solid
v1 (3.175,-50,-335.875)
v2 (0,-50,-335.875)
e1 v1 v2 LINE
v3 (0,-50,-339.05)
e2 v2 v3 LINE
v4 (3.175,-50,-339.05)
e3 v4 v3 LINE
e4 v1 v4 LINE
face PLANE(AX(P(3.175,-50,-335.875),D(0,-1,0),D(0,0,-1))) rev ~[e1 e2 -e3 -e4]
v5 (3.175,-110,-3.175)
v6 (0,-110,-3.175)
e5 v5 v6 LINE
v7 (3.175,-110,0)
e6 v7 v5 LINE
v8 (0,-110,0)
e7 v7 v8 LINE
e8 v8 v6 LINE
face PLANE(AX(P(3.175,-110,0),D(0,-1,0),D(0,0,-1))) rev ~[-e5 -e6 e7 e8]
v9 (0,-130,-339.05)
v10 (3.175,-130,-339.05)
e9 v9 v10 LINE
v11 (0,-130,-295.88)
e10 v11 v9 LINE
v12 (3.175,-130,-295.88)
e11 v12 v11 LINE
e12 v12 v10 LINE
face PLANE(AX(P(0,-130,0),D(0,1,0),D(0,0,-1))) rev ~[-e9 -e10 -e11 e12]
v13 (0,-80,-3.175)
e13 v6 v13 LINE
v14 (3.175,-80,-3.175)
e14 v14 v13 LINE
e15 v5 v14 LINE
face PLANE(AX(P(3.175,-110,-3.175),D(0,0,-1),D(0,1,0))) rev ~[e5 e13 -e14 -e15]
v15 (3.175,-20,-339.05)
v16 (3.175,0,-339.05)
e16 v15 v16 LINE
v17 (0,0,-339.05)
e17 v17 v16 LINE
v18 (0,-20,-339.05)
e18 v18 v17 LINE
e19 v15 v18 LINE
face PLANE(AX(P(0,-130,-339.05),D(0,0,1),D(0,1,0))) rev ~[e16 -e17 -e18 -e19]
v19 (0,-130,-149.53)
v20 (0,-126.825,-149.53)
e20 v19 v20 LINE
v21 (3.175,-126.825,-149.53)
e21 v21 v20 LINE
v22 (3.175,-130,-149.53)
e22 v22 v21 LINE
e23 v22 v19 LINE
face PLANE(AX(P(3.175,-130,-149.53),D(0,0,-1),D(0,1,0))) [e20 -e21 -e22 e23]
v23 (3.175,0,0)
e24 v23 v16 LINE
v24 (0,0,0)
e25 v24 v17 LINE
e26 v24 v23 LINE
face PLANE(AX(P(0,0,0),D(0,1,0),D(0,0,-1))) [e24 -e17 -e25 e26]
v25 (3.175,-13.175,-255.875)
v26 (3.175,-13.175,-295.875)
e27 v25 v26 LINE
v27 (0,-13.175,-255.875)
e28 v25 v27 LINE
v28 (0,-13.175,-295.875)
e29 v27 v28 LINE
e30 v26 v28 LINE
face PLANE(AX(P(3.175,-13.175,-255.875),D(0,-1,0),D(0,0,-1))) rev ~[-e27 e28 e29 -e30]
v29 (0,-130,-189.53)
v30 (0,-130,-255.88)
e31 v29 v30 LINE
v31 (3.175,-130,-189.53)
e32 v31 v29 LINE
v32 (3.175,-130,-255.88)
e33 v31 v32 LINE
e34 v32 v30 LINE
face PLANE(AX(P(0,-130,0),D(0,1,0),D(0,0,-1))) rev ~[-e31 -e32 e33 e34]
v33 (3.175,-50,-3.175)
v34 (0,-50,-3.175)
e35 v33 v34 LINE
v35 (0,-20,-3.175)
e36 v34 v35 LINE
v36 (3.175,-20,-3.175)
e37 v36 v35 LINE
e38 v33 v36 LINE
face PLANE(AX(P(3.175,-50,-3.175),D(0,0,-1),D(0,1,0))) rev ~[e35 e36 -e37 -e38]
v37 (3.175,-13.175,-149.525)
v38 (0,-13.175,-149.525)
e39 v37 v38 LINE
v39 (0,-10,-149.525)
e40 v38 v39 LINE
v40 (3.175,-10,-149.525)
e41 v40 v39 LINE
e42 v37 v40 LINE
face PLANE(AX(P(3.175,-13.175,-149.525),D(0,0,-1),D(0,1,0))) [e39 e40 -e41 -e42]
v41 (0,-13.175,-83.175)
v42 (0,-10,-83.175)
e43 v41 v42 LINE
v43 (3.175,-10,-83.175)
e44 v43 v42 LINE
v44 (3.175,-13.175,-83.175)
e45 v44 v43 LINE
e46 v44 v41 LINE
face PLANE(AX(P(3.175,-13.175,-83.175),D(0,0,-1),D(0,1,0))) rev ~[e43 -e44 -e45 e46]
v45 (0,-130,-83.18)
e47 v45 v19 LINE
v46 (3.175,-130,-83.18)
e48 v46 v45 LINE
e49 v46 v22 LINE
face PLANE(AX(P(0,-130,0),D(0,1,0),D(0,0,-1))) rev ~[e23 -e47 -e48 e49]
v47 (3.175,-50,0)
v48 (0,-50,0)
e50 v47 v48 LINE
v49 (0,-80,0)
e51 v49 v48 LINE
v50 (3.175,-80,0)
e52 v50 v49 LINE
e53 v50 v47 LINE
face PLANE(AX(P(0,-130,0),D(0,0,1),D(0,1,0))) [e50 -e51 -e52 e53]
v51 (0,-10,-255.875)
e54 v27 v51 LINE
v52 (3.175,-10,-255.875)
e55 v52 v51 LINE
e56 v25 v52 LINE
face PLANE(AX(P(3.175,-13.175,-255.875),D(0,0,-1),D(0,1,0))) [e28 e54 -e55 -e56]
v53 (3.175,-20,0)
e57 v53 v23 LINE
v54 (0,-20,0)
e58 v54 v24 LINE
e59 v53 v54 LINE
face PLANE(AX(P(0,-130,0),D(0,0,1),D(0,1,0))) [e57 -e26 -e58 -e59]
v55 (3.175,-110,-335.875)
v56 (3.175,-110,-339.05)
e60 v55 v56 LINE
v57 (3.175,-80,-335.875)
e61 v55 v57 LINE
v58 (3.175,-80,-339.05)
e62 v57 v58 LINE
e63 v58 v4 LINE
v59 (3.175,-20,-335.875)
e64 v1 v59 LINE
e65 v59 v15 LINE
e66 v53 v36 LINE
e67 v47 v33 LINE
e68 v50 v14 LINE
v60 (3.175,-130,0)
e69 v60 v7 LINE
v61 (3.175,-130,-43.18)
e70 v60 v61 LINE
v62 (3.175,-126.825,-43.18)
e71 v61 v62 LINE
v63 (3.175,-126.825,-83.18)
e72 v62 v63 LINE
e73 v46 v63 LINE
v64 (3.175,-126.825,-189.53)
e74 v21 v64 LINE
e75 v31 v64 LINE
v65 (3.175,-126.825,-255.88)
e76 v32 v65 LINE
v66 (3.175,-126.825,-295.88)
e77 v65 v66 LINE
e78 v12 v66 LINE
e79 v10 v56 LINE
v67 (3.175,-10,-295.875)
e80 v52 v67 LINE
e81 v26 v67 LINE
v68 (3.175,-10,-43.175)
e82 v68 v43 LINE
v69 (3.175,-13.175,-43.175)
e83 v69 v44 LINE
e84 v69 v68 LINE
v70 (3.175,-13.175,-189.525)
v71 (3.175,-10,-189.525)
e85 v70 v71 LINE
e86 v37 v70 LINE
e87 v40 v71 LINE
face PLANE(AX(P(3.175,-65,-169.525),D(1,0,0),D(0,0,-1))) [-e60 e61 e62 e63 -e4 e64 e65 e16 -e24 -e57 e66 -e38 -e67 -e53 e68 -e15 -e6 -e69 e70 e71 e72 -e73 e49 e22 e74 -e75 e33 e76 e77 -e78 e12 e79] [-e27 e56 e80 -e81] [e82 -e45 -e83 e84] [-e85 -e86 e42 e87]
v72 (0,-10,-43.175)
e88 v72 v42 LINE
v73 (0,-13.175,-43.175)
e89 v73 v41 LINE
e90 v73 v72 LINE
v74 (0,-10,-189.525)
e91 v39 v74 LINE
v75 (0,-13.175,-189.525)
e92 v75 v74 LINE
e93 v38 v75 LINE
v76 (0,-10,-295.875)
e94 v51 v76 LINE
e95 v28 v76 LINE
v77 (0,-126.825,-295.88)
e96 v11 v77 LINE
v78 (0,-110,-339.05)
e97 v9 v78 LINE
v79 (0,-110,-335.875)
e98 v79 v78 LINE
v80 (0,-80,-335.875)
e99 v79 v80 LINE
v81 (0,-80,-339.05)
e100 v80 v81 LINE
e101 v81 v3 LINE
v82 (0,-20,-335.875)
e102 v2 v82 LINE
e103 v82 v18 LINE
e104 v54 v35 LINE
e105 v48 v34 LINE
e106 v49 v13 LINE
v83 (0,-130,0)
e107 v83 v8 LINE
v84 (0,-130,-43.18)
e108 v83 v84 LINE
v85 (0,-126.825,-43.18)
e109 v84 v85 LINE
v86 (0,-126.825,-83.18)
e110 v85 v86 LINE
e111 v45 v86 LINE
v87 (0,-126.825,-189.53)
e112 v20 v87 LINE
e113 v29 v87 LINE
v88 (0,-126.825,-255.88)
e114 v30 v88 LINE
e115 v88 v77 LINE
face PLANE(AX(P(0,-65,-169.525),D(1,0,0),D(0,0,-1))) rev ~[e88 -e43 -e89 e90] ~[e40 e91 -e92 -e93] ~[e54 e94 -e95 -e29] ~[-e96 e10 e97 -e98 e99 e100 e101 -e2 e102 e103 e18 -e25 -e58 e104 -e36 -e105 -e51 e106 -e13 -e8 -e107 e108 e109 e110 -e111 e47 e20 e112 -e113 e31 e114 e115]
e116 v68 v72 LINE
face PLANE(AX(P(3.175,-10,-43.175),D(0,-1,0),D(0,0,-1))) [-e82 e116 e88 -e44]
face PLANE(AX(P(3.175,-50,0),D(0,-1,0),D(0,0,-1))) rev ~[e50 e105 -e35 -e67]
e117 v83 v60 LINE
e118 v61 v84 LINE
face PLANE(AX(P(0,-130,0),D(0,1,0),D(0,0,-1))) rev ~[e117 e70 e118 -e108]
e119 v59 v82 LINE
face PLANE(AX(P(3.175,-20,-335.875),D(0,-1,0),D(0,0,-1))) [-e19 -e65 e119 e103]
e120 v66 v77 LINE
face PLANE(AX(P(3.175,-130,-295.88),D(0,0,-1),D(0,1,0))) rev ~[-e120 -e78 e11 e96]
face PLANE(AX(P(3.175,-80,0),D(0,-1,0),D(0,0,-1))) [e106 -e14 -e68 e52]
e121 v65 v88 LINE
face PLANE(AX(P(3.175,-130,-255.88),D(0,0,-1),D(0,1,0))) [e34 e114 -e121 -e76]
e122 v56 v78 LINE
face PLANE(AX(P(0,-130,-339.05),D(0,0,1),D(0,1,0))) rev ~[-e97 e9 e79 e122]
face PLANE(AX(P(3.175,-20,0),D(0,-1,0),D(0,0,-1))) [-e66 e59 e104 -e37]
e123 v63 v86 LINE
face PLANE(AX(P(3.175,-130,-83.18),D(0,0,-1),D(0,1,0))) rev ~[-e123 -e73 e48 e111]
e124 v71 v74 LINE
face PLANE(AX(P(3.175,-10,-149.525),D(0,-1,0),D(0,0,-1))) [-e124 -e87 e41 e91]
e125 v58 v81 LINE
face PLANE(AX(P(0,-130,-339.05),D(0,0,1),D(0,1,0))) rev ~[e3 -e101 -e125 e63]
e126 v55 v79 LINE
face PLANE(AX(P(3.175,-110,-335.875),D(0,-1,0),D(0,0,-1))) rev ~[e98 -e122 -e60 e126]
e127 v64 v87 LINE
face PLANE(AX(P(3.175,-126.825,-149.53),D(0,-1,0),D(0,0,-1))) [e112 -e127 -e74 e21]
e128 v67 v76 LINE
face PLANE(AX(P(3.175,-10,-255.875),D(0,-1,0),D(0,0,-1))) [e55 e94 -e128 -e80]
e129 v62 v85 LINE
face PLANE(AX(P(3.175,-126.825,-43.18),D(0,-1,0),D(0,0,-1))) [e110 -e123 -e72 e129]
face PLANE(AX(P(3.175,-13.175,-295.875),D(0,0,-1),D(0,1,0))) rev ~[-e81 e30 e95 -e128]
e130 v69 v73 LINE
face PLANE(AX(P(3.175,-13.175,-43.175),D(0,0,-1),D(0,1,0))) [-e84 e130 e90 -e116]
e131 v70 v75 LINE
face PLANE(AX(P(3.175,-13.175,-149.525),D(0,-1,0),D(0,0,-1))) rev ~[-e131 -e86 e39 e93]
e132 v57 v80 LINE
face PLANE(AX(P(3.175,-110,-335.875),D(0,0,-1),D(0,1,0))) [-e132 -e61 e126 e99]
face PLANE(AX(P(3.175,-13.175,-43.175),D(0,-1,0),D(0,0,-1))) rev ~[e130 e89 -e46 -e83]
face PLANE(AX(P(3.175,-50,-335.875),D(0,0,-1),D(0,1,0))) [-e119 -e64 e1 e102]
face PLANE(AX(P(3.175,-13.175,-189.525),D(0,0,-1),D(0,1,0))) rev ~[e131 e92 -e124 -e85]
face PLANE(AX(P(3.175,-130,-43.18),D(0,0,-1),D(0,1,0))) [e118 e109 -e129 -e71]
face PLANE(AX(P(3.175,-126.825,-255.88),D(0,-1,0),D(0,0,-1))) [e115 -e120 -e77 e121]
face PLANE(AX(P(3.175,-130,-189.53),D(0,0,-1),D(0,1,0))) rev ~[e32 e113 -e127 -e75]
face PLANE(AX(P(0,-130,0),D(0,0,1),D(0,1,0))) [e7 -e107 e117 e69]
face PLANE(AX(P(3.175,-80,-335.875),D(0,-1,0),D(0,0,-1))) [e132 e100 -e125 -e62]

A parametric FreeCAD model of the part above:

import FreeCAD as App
import Part
import Sketcher
from FreeCAD import Vector
Q = App.Units.Quantity

doc = App.newDocument("Part")
body = doc.addObject("PartDesign::Body", "Body")

sketch1 = body.newObject("Sketcher::SketchObject", "Sketch")
sketch1.AttachmentSupport = (doc.getObject("YZ_Plane"), [""])
sketch1.MapMode = "FlatFace"
sketch1.addGeometry(Part.LineSegment(Vector(0, 0, 0), Vector(-130, 0, 0)), False)
sketch1.addGeometry(Part.LineSegment(Vector(-130, 0, 0), Vector(-130, -339, 0)), False)
sketch1.addGeometry(Part.LineSegment(Vector(-130, -339, 0), Vector(0, -339, 0)), False)
sketch1.addGeometry(Part.LineSegment(Vector(0, -339, 0), Vector(0, 0, 0)), False)
sketch1.addConstraint(Sketcher.Constraint("Coincident", 0, 2, 1, 1))
sketch1.addConstraint(Sketcher.Constraint("Coincident", 1, 2, 2, 1))
sketch1.addConstraint(Sketcher.Constraint("Coincident", 2, 2, 3, 1))
sketch1.addConstraint(Sketcher.Constraint("Coincident", 3, 2, 0, 1))
sketch1.addConstraint(Sketcher.Constraint("Horizontal", 0))
sketch1.addConstraint(Sketcher.Constraint("Vertical", 1))
sketch1.addConstraint(Sketcher.Constraint("Horizontal", 2))
sketch1.addConstraint(Sketcher.Constraint("Vertical", 3))
sketch1.addConstraint(Sketcher.Constraint("Coincident", 3, 2, -1, 1))
sketch1.addConstraint(Sketcher.Constraint("DistanceX", 0, 2, 0, 1, Q("130 mm")))
sketch1.addConstraint(Sketcher.Constraint("DistanceY", 1, 2, 1, 1, Q("339.05 mm")))
pad1 = body.newObject("PartDesign::Pad", "Pad")
pad1.Profile = sketch1
pad1.Length = 3.175

sketch2 = body.newObject("Sketcher::SketchObject", "Sketch001")
sketch2.AttachmentSupport = (doc.getObject("YZ_Plane"), [""])
sketch2.MapMode = "FlatFace"
sketch2.AttachmentOffset = App.Placement(Vector(0, 0, 3.175), App.Rotation())
sketch2.addGeometry(Part.LineSegment(Vector(-10, -43.2, 0), Vector(-13.2, -43.2, 0)), False)
sketch2.addGeometry(Part.LineSegment(Vector(-13.2, -43.2, 0), Vector(-13.2, -83.2, 0)), False)
sketch2.addGeometry(Part.LineSegment(Vector(-13.2, -83.2, 0), Vector(-10, -83.2, 0)), False)
sketch2.addGeometry(Part.LineSegment(Vector(-10, -83.2, 0), Vector(-10, -43.2, 0)), False)
sketch2.addGeometry(Part.LineSegment(Vector(-10, -149.5, 0), Vector(-13.2, -149.5, 0)), False)
sketch2.addGeometry(Part.LineSegment(Vector(-13.2, -149.5, 0), Vector(-13.2, -189.5, 0)), False)
sketch2.addGeometry(Part.LineSegment(Vector(-13.2, -189.5, 0), Vector(-10, -189.5, 0)), False)
sketch2.addGeometry(Part.LineSegment(Vector(-10, -189.5, 0), Vector(-10, -149.5, 0)), False)
sketch2.addGeometry(Part.LineSegment(Vector(-10, -255.9, 0), Vector(-13.2, -255.9, 0)), False)
sketch2.addGeometry(Part.LineSegment(Vector(-13.2, -255.9, 0), Vector(-13.2, -295.9, 0)), False)
sketch2.addGeometry(Part.LineSegment(Vector(-13.2, -295.9, 0), Vector(-10, -295.9, 0)), False)
sketch2.addGeometry(Part.LineSegment(Vector(-10, -295.9, 0), Vector(-10, -255.9, 0)), False)
sketch2.addGeometry(Part.LineSegment(Vector(-20, -335.9, 0), Vector(-50, -335.9, 0)), False)
sketch2.addGeometry(Part.LineSegment(Vector(-50, -335.9, 0), Vector(-50, -339.1, 0)), False)
sketch2.addGeometry(Part.LineSegment(Vector(-50, -339.1, 0), Vector(-20, -339.1, 0)), False)
sketch2.addGeometry(Part.LineSegment(Vector(-20, -339.1, 0), Vector(-20, -335.9, 0)), False)
sketch2.addGeometry(Part.LineSegment(Vector(-80, -335.9, 0), Vector(-110, -335.9, 0)), False)
sketch2.addGeometry(Part.LineSegment(Vector(-110, -335.9, 0), Vector(-110, -339.1, 0)), False)
sketch2.addGeometry(Part.LineSegment(Vector(-110, -339.1, 0), Vector(-80, -339.1, 0)), False)
sketch2.addGeometry(Part.LineSegment(Vector(-80, -339.1, 0), Vector(-80, -335.9, 0)), False)
sketch2.addGeometry(Part.LineSegment(Vector(-20, 0, 0), Vector(-50, 0, 0)), False)
sketch2.addGeometry(Part.LineSegment(Vector(-50, 0, 0), Vector(-50, -3.2, 0)), False)
sketch2.addGeometry(Part.LineSegment(Vector(-50, -3.2, 0), Vector(-20, -3.2, 0)), False)
sketch2.addGeometry(Part.LineSegment(Vector(-20, -3.2, 0), Vector(-20, 0, 0)), False)
sketch2.addGeometry(Part.LineSegment(Vector(-80, 0, 0), Vector(-110, 0, 0)), False)
sketch2.addGeometry(Part.LineSegment(Vector(-110, 0, 0), Vector(-110, -3.2, 0)), False)
sketch2.addGeometry(Part.LineSegment(Vector(-110, -3.2, 0), Vector(-80, -3.2, 0)), False)
sketch2.addGeometry(Part.LineSegment(Vector(-80, -3.2, 0), Vector(-80, 0, 0)), False)
sketch2.addConstraint(Sketcher.Constraint("Coincident", 0, 2, 1, 1))
sketch2.addConstraint(Sketcher.Constraint("Coincident", 1, 2, 2, 1))
sketch2.addConstraint(Sketcher.Constraint("Coincident", 2, 2, 3, 1))
sketch2.addConstraint(Sketcher.Constraint("Coincident", 3, 2, 0, 1))
sketch2.addConstraint(Sketcher.Constraint("Coincident", 4, 2, 5, 1))
sketch2.addConstraint(Sketcher.Constraint("Coincident", 5, 2, 6, 1))
sketch2.addConstraint(Sketcher.Constraint("Coincident", 6, 2, 7, 1))
sketch2.addConstraint(Sketcher.Constraint("Coincident", 7, 2, 4, 1))
sketch2.addConstraint(Sketcher.Constraint("Coincident", 8, 2, 9, 1))
sketch2.addConstraint(Sketcher.Constraint("Coincident", 9, 2, 10, 1))
sketch2.addConstraint(Sketcher.Constraint("Coincident", 10, 2, 11, 1))
sketch2.addConstraint(Sketcher.Constraint("Coincident", 11, 2, 8, 1))
sketch2.addConstraint(Sketcher.Constraint("Coincident", 12, 2, 13, 1))
sketch2.addConstraint(Sketcher.Constraint("Coincident", 13, 2, 14, 1))
sketch2.addConstraint(Sketcher.Constraint("Coincident", 14, 2, 15, 1))
sketch2.addConstraint(Sketcher.Constraint("Coincident", 15, 2, 12, 1))
sketch2.addConstraint(Sketcher.Constraint("Coincident", 16, 2, 17, 1))
sketch2.addConstraint(Sketcher.Constraint("Coincident", 17, 2, 18, 1))
sketch2.addConstraint(Sketcher.Constraint("Coincident", 18, 2, 19, 1))
sketch2.addConstraint(Sketcher.Constraint("Coincident", 19, 2, 16, 1))
sketch2.addConstraint(Sketcher.Constraint("Coincident", 20, 2, 21, 1))
sketch2.addConstraint(Sketcher.Constraint("Coincident", 21, 2, 22, 1))
sketch2.addConstraint(Sketcher.Constraint("Coincident", 22, 2, 23, 1))
sketch2.addConstraint(Sketcher.Constraint("Coincident", 23, 2, 20, 1))
sketch2.addConstraint(Sketcher.Constraint("Coincident", 24, 2, 25, 1))
sketch2.addConstraint(Sketcher.Constraint("Coincident", 25, 2, 26, 1))
sketch2.addConstraint(Sketcher.Constraint("Coincident", 26, 2, 27, 1))
sketch2.addConstraint(Sketcher.Constraint("Coincident", 27, 2, 24, 1))
sketch2.addConstraint(Sketcher.Constraint("Horizontal", 0))
sketch2.addConstraint(Sketcher.Constraint("Vertical", 1))
sketch2.addConstraint(Sketcher.Constraint("Horizontal", 2))
sketch2.addConstraint(Sketcher.Constraint("Vertical", 3))
sketch2.addConstraint(Sketcher.Constraint("Horizontal", 4))
sketch2.addConstraint(Sketcher.Constraint("Vertical", 5))
sketch2.addConstraint(Sketcher.Constraint("Horizontal", 6))
sketch2.addConstraint(Sketcher.Constraint("Vertical", 7))
sketch2.addConstraint(Sketcher.Constraint("Horizontal", 8))
sketch2.addConstraint(Sketcher.Constraint("Vertical", 9))
sketch2.addConstraint(Sketcher.Constraint("Horizontal", 10))
sketch2.addConstraint(Sketcher.Constraint("Vertical", 11))
sketch2.addConstraint(Sketcher.Constraint("Horizontal", 12))
sketch2.addConstraint(Sketcher.Constraint("Vertical", 13))
sketch2.addConstraint(Sketcher.Constraint("Horizontal", 14))
sketch2.addConstraint(Sketcher.Constraint("Vertical", 15))
sketch2.addConstraint(Sketcher.Constraint("Horizontal", 16))
sketch2.addConstraint(Sketcher.Constraint("Vertical", 17))
sketch2.addConstraint(Sketcher.Constraint("Horizontal", 18))
sketch2.addConstraint(Sketcher.Constraint("Vertical", 19))
sketch2.addConstraint(Sketcher.Constraint("Horizontal", 20))
sketch2.addConstraint(Sketcher.Constraint("Vertical", 21))
sketch2.addConstraint(Sketcher.Constraint("Horizontal", 22))
sketch2.addConstraint(Sketcher.Constraint("Vertical", 23))
sketch2.addConstraint(Sketcher.Constraint("Horizontal", 24))
sketch2.addConstraint(Sketcher.Constraint("Vertical", 25))
sketch2.addConstraint(Sketcher.Constraint("Horizontal", 26))
sketch2.addConstraint(Sketcher.Constraint("Vertical", 27))
sketch2.addConstraint(Sketcher.Constraint("PointOnObject", 20, 2, -1))
sketch2.addConstraint(Sketcher.Constraint("PointOnObject", 24, 2, -1))
sketch2.addConstraint(Sketcher.Constraint("Horizontal", 15, 2, 16, 2))
sketch2.addConstraint(Sketcher.Constraint("Horizontal", 14, 2, 17, 2))
sketch2.addConstraint(Sketcher.Constraint("Horizontal", 22, 2, 25, 2))
sketch2.addConstraint(Sketcher.Constraint("Vertical", 1, 2, 4, 2))
sketch2.addConstraint(Sketcher.Constraint("Vertical", 3, 2, 6, 2))
sketch2.addConstraint(Sketcher.Constraint("Vertical", 5, 2, 8, 2))
sketch2.addConstraint(Sketcher.Constraint("Vertical", 7, 2, 10, 2))
sketch2.addConstraint(Sketcher.Constraint("Vertical", 13, 2, 20, 2))
sketch2.addConstraint(Sketcher.Constraint("Vertical", 15, 2, 22, 2))
sketch2.addConstraint(Sketcher.Constraint("Vertical", 17, 2, 24, 2))
sketch2.addConstraint(Sketcher.Constraint("Vertical", 19, 2, 26, 2))
sketch2.addConstraint(Sketcher.Constraint("Equal", 14, 16))
sketch2.addConstraint(Sketcher.Constraint("Equal", 3, 5))
sketch2.addConstraint(Sketcher.Constraint("Equal", 7, 9))
sketch2.addConstraint(Sketcher.Constraint("Equal", 10, 13))
sketch2.addConstraint(Sketcher.Constraint("Equal", 19, 21))
sketch2.addConstraint(Sketcher.Constraint("DistanceX", 12, 2, 12, 1, Q("30 mm")))
sketch2.addConstraint(Sketcher.Constraint("DistanceY", 1, 2, 1, 1, Q("40 mm")))
sketch2.addConstraint(Sketcher.Constraint("DistanceX", 2, 2, -1, 1, Q("10 mm")))
sketch2.addConstraint(Sketcher.Constraint("DistanceX", 12, 2, -1, 1, Q("50 mm")))
sketch2.addConstraint(Sketcher.Constraint("DistanceX", 16, 2, -1, 1, Q("110 mm")))
sketch2.addConstraint(Sketcher.Constraint("DistanceY", 12, 2, 9, 2, Q("40 mm")))
sketch2.addConstraint(Sketcher.Constraint("DistanceY", 0, 2, 21, 2, Q("40 mm")))
sketch2.addConstraint(Sketcher.Constraint("DistanceY", 8, 2, 1, 2, Q("172.7 mm")))
sketch2.addConstraint(Sketcher.Constraint("DistanceX", 0, 2, 0, 1, Q("3.175 mm")))
sketch2.addConstraint(Sketcher.Constraint("DistanceY", 4, 2, 1, 2, Q("66.35 mm")))
pocket1 = body.newObject("PartDesign::Pocket", "Pocket")
pocket1.Profile = sketch2
pocket1.Length = 10

sketch3 = body.newObject("Sketcher::SketchObject", "Sketch002")
sketch3.AttachmentSupport = (doc.getObject("YZ_Plane"), [""])
sketch3.MapMode = "FlatFace"
sketch3.AttachmentOffset = App.Placement(Vector(0, 0, 3.175), App.Rotation())
sketch3.addGeometry(Part.LineSegment(Vector(-126.8, -43.2, 0), Vector(-130, -43.2, 0)), False)
sketch3.addGeometry(Part.LineSegment(Vector(-130, -43.2, 0), Vector(-130, -83.2, 0)), False)
sketch3.addGeometry(Part.LineSegment(Vector(-130, -83.2, 0), Vector(-126.8, -83.2, 0)), False)
sketch3.addGeometry(Part.LineSegment(Vector(-126.8, -83.2, 0), Vector(-126.8, -43.2, 0)), False)
sketch3.addConstraint(Sketcher.Constraint("Coincident", 0, 2, 1, 1))
sketch3.addConstraint(Sketcher.Constraint("Coincident", 1, 2, 2, 1))
sketch3.addConstraint(Sketcher.Constraint("Coincident", 2, 2, 3, 1))
sketch3.addConstraint(Sketcher.Constraint("Coincident", 3, 2, 0, 1))
sketch3.addConstraint(Sketcher.Constraint("Horizontal", 0))
sketch3.addConstraint(Sketcher.Constraint("Vertical", 1))
sketch3.addConstraint(Sketcher.Constraint("Horizontal", 2))
sketch3.addConstraint(Sketcher.Constraint("Vertical", 3))
sketch3.addConstraint(Sketcher.Constraint("DistanceY", 1, 2, 1, 1, Q("40 mm")))
sketch3.addConstraint(Sketcher.Constraint("DistanceX", 0, 2, -1, 1, Q("130 mm")))
sketch3.addConstraint(Sketcher.Constraint("DistanceX", 0, 2, 0, 1, Q("3.175 mm")))
sketch3.addConstraint(Sketcher.Constraint("DistanceY", 0, 2, -1, 1, Q("43.18 mm")))
pocket2 = body.newObject("PartDesign::Pocket", "Pocket001")
pocket2.Profile = sketch3
pocket2.Type = "ThroughAll"
doc.recompute()

linearpattern = body.newObject("PartDesign::LinearPattern", "LinearPattern")
linearpattern.Originals = [pocket2]
linearpattern.Direction = (doc.getObject("Z_Axis"), [""])
linearpattern.Mode = "offset"
linearpattern.Offset = 106.35
linearpattern.Occurrences = 3
linearpattern.Reversed = True
body.Tip = linearpattern

doc.recompute()
